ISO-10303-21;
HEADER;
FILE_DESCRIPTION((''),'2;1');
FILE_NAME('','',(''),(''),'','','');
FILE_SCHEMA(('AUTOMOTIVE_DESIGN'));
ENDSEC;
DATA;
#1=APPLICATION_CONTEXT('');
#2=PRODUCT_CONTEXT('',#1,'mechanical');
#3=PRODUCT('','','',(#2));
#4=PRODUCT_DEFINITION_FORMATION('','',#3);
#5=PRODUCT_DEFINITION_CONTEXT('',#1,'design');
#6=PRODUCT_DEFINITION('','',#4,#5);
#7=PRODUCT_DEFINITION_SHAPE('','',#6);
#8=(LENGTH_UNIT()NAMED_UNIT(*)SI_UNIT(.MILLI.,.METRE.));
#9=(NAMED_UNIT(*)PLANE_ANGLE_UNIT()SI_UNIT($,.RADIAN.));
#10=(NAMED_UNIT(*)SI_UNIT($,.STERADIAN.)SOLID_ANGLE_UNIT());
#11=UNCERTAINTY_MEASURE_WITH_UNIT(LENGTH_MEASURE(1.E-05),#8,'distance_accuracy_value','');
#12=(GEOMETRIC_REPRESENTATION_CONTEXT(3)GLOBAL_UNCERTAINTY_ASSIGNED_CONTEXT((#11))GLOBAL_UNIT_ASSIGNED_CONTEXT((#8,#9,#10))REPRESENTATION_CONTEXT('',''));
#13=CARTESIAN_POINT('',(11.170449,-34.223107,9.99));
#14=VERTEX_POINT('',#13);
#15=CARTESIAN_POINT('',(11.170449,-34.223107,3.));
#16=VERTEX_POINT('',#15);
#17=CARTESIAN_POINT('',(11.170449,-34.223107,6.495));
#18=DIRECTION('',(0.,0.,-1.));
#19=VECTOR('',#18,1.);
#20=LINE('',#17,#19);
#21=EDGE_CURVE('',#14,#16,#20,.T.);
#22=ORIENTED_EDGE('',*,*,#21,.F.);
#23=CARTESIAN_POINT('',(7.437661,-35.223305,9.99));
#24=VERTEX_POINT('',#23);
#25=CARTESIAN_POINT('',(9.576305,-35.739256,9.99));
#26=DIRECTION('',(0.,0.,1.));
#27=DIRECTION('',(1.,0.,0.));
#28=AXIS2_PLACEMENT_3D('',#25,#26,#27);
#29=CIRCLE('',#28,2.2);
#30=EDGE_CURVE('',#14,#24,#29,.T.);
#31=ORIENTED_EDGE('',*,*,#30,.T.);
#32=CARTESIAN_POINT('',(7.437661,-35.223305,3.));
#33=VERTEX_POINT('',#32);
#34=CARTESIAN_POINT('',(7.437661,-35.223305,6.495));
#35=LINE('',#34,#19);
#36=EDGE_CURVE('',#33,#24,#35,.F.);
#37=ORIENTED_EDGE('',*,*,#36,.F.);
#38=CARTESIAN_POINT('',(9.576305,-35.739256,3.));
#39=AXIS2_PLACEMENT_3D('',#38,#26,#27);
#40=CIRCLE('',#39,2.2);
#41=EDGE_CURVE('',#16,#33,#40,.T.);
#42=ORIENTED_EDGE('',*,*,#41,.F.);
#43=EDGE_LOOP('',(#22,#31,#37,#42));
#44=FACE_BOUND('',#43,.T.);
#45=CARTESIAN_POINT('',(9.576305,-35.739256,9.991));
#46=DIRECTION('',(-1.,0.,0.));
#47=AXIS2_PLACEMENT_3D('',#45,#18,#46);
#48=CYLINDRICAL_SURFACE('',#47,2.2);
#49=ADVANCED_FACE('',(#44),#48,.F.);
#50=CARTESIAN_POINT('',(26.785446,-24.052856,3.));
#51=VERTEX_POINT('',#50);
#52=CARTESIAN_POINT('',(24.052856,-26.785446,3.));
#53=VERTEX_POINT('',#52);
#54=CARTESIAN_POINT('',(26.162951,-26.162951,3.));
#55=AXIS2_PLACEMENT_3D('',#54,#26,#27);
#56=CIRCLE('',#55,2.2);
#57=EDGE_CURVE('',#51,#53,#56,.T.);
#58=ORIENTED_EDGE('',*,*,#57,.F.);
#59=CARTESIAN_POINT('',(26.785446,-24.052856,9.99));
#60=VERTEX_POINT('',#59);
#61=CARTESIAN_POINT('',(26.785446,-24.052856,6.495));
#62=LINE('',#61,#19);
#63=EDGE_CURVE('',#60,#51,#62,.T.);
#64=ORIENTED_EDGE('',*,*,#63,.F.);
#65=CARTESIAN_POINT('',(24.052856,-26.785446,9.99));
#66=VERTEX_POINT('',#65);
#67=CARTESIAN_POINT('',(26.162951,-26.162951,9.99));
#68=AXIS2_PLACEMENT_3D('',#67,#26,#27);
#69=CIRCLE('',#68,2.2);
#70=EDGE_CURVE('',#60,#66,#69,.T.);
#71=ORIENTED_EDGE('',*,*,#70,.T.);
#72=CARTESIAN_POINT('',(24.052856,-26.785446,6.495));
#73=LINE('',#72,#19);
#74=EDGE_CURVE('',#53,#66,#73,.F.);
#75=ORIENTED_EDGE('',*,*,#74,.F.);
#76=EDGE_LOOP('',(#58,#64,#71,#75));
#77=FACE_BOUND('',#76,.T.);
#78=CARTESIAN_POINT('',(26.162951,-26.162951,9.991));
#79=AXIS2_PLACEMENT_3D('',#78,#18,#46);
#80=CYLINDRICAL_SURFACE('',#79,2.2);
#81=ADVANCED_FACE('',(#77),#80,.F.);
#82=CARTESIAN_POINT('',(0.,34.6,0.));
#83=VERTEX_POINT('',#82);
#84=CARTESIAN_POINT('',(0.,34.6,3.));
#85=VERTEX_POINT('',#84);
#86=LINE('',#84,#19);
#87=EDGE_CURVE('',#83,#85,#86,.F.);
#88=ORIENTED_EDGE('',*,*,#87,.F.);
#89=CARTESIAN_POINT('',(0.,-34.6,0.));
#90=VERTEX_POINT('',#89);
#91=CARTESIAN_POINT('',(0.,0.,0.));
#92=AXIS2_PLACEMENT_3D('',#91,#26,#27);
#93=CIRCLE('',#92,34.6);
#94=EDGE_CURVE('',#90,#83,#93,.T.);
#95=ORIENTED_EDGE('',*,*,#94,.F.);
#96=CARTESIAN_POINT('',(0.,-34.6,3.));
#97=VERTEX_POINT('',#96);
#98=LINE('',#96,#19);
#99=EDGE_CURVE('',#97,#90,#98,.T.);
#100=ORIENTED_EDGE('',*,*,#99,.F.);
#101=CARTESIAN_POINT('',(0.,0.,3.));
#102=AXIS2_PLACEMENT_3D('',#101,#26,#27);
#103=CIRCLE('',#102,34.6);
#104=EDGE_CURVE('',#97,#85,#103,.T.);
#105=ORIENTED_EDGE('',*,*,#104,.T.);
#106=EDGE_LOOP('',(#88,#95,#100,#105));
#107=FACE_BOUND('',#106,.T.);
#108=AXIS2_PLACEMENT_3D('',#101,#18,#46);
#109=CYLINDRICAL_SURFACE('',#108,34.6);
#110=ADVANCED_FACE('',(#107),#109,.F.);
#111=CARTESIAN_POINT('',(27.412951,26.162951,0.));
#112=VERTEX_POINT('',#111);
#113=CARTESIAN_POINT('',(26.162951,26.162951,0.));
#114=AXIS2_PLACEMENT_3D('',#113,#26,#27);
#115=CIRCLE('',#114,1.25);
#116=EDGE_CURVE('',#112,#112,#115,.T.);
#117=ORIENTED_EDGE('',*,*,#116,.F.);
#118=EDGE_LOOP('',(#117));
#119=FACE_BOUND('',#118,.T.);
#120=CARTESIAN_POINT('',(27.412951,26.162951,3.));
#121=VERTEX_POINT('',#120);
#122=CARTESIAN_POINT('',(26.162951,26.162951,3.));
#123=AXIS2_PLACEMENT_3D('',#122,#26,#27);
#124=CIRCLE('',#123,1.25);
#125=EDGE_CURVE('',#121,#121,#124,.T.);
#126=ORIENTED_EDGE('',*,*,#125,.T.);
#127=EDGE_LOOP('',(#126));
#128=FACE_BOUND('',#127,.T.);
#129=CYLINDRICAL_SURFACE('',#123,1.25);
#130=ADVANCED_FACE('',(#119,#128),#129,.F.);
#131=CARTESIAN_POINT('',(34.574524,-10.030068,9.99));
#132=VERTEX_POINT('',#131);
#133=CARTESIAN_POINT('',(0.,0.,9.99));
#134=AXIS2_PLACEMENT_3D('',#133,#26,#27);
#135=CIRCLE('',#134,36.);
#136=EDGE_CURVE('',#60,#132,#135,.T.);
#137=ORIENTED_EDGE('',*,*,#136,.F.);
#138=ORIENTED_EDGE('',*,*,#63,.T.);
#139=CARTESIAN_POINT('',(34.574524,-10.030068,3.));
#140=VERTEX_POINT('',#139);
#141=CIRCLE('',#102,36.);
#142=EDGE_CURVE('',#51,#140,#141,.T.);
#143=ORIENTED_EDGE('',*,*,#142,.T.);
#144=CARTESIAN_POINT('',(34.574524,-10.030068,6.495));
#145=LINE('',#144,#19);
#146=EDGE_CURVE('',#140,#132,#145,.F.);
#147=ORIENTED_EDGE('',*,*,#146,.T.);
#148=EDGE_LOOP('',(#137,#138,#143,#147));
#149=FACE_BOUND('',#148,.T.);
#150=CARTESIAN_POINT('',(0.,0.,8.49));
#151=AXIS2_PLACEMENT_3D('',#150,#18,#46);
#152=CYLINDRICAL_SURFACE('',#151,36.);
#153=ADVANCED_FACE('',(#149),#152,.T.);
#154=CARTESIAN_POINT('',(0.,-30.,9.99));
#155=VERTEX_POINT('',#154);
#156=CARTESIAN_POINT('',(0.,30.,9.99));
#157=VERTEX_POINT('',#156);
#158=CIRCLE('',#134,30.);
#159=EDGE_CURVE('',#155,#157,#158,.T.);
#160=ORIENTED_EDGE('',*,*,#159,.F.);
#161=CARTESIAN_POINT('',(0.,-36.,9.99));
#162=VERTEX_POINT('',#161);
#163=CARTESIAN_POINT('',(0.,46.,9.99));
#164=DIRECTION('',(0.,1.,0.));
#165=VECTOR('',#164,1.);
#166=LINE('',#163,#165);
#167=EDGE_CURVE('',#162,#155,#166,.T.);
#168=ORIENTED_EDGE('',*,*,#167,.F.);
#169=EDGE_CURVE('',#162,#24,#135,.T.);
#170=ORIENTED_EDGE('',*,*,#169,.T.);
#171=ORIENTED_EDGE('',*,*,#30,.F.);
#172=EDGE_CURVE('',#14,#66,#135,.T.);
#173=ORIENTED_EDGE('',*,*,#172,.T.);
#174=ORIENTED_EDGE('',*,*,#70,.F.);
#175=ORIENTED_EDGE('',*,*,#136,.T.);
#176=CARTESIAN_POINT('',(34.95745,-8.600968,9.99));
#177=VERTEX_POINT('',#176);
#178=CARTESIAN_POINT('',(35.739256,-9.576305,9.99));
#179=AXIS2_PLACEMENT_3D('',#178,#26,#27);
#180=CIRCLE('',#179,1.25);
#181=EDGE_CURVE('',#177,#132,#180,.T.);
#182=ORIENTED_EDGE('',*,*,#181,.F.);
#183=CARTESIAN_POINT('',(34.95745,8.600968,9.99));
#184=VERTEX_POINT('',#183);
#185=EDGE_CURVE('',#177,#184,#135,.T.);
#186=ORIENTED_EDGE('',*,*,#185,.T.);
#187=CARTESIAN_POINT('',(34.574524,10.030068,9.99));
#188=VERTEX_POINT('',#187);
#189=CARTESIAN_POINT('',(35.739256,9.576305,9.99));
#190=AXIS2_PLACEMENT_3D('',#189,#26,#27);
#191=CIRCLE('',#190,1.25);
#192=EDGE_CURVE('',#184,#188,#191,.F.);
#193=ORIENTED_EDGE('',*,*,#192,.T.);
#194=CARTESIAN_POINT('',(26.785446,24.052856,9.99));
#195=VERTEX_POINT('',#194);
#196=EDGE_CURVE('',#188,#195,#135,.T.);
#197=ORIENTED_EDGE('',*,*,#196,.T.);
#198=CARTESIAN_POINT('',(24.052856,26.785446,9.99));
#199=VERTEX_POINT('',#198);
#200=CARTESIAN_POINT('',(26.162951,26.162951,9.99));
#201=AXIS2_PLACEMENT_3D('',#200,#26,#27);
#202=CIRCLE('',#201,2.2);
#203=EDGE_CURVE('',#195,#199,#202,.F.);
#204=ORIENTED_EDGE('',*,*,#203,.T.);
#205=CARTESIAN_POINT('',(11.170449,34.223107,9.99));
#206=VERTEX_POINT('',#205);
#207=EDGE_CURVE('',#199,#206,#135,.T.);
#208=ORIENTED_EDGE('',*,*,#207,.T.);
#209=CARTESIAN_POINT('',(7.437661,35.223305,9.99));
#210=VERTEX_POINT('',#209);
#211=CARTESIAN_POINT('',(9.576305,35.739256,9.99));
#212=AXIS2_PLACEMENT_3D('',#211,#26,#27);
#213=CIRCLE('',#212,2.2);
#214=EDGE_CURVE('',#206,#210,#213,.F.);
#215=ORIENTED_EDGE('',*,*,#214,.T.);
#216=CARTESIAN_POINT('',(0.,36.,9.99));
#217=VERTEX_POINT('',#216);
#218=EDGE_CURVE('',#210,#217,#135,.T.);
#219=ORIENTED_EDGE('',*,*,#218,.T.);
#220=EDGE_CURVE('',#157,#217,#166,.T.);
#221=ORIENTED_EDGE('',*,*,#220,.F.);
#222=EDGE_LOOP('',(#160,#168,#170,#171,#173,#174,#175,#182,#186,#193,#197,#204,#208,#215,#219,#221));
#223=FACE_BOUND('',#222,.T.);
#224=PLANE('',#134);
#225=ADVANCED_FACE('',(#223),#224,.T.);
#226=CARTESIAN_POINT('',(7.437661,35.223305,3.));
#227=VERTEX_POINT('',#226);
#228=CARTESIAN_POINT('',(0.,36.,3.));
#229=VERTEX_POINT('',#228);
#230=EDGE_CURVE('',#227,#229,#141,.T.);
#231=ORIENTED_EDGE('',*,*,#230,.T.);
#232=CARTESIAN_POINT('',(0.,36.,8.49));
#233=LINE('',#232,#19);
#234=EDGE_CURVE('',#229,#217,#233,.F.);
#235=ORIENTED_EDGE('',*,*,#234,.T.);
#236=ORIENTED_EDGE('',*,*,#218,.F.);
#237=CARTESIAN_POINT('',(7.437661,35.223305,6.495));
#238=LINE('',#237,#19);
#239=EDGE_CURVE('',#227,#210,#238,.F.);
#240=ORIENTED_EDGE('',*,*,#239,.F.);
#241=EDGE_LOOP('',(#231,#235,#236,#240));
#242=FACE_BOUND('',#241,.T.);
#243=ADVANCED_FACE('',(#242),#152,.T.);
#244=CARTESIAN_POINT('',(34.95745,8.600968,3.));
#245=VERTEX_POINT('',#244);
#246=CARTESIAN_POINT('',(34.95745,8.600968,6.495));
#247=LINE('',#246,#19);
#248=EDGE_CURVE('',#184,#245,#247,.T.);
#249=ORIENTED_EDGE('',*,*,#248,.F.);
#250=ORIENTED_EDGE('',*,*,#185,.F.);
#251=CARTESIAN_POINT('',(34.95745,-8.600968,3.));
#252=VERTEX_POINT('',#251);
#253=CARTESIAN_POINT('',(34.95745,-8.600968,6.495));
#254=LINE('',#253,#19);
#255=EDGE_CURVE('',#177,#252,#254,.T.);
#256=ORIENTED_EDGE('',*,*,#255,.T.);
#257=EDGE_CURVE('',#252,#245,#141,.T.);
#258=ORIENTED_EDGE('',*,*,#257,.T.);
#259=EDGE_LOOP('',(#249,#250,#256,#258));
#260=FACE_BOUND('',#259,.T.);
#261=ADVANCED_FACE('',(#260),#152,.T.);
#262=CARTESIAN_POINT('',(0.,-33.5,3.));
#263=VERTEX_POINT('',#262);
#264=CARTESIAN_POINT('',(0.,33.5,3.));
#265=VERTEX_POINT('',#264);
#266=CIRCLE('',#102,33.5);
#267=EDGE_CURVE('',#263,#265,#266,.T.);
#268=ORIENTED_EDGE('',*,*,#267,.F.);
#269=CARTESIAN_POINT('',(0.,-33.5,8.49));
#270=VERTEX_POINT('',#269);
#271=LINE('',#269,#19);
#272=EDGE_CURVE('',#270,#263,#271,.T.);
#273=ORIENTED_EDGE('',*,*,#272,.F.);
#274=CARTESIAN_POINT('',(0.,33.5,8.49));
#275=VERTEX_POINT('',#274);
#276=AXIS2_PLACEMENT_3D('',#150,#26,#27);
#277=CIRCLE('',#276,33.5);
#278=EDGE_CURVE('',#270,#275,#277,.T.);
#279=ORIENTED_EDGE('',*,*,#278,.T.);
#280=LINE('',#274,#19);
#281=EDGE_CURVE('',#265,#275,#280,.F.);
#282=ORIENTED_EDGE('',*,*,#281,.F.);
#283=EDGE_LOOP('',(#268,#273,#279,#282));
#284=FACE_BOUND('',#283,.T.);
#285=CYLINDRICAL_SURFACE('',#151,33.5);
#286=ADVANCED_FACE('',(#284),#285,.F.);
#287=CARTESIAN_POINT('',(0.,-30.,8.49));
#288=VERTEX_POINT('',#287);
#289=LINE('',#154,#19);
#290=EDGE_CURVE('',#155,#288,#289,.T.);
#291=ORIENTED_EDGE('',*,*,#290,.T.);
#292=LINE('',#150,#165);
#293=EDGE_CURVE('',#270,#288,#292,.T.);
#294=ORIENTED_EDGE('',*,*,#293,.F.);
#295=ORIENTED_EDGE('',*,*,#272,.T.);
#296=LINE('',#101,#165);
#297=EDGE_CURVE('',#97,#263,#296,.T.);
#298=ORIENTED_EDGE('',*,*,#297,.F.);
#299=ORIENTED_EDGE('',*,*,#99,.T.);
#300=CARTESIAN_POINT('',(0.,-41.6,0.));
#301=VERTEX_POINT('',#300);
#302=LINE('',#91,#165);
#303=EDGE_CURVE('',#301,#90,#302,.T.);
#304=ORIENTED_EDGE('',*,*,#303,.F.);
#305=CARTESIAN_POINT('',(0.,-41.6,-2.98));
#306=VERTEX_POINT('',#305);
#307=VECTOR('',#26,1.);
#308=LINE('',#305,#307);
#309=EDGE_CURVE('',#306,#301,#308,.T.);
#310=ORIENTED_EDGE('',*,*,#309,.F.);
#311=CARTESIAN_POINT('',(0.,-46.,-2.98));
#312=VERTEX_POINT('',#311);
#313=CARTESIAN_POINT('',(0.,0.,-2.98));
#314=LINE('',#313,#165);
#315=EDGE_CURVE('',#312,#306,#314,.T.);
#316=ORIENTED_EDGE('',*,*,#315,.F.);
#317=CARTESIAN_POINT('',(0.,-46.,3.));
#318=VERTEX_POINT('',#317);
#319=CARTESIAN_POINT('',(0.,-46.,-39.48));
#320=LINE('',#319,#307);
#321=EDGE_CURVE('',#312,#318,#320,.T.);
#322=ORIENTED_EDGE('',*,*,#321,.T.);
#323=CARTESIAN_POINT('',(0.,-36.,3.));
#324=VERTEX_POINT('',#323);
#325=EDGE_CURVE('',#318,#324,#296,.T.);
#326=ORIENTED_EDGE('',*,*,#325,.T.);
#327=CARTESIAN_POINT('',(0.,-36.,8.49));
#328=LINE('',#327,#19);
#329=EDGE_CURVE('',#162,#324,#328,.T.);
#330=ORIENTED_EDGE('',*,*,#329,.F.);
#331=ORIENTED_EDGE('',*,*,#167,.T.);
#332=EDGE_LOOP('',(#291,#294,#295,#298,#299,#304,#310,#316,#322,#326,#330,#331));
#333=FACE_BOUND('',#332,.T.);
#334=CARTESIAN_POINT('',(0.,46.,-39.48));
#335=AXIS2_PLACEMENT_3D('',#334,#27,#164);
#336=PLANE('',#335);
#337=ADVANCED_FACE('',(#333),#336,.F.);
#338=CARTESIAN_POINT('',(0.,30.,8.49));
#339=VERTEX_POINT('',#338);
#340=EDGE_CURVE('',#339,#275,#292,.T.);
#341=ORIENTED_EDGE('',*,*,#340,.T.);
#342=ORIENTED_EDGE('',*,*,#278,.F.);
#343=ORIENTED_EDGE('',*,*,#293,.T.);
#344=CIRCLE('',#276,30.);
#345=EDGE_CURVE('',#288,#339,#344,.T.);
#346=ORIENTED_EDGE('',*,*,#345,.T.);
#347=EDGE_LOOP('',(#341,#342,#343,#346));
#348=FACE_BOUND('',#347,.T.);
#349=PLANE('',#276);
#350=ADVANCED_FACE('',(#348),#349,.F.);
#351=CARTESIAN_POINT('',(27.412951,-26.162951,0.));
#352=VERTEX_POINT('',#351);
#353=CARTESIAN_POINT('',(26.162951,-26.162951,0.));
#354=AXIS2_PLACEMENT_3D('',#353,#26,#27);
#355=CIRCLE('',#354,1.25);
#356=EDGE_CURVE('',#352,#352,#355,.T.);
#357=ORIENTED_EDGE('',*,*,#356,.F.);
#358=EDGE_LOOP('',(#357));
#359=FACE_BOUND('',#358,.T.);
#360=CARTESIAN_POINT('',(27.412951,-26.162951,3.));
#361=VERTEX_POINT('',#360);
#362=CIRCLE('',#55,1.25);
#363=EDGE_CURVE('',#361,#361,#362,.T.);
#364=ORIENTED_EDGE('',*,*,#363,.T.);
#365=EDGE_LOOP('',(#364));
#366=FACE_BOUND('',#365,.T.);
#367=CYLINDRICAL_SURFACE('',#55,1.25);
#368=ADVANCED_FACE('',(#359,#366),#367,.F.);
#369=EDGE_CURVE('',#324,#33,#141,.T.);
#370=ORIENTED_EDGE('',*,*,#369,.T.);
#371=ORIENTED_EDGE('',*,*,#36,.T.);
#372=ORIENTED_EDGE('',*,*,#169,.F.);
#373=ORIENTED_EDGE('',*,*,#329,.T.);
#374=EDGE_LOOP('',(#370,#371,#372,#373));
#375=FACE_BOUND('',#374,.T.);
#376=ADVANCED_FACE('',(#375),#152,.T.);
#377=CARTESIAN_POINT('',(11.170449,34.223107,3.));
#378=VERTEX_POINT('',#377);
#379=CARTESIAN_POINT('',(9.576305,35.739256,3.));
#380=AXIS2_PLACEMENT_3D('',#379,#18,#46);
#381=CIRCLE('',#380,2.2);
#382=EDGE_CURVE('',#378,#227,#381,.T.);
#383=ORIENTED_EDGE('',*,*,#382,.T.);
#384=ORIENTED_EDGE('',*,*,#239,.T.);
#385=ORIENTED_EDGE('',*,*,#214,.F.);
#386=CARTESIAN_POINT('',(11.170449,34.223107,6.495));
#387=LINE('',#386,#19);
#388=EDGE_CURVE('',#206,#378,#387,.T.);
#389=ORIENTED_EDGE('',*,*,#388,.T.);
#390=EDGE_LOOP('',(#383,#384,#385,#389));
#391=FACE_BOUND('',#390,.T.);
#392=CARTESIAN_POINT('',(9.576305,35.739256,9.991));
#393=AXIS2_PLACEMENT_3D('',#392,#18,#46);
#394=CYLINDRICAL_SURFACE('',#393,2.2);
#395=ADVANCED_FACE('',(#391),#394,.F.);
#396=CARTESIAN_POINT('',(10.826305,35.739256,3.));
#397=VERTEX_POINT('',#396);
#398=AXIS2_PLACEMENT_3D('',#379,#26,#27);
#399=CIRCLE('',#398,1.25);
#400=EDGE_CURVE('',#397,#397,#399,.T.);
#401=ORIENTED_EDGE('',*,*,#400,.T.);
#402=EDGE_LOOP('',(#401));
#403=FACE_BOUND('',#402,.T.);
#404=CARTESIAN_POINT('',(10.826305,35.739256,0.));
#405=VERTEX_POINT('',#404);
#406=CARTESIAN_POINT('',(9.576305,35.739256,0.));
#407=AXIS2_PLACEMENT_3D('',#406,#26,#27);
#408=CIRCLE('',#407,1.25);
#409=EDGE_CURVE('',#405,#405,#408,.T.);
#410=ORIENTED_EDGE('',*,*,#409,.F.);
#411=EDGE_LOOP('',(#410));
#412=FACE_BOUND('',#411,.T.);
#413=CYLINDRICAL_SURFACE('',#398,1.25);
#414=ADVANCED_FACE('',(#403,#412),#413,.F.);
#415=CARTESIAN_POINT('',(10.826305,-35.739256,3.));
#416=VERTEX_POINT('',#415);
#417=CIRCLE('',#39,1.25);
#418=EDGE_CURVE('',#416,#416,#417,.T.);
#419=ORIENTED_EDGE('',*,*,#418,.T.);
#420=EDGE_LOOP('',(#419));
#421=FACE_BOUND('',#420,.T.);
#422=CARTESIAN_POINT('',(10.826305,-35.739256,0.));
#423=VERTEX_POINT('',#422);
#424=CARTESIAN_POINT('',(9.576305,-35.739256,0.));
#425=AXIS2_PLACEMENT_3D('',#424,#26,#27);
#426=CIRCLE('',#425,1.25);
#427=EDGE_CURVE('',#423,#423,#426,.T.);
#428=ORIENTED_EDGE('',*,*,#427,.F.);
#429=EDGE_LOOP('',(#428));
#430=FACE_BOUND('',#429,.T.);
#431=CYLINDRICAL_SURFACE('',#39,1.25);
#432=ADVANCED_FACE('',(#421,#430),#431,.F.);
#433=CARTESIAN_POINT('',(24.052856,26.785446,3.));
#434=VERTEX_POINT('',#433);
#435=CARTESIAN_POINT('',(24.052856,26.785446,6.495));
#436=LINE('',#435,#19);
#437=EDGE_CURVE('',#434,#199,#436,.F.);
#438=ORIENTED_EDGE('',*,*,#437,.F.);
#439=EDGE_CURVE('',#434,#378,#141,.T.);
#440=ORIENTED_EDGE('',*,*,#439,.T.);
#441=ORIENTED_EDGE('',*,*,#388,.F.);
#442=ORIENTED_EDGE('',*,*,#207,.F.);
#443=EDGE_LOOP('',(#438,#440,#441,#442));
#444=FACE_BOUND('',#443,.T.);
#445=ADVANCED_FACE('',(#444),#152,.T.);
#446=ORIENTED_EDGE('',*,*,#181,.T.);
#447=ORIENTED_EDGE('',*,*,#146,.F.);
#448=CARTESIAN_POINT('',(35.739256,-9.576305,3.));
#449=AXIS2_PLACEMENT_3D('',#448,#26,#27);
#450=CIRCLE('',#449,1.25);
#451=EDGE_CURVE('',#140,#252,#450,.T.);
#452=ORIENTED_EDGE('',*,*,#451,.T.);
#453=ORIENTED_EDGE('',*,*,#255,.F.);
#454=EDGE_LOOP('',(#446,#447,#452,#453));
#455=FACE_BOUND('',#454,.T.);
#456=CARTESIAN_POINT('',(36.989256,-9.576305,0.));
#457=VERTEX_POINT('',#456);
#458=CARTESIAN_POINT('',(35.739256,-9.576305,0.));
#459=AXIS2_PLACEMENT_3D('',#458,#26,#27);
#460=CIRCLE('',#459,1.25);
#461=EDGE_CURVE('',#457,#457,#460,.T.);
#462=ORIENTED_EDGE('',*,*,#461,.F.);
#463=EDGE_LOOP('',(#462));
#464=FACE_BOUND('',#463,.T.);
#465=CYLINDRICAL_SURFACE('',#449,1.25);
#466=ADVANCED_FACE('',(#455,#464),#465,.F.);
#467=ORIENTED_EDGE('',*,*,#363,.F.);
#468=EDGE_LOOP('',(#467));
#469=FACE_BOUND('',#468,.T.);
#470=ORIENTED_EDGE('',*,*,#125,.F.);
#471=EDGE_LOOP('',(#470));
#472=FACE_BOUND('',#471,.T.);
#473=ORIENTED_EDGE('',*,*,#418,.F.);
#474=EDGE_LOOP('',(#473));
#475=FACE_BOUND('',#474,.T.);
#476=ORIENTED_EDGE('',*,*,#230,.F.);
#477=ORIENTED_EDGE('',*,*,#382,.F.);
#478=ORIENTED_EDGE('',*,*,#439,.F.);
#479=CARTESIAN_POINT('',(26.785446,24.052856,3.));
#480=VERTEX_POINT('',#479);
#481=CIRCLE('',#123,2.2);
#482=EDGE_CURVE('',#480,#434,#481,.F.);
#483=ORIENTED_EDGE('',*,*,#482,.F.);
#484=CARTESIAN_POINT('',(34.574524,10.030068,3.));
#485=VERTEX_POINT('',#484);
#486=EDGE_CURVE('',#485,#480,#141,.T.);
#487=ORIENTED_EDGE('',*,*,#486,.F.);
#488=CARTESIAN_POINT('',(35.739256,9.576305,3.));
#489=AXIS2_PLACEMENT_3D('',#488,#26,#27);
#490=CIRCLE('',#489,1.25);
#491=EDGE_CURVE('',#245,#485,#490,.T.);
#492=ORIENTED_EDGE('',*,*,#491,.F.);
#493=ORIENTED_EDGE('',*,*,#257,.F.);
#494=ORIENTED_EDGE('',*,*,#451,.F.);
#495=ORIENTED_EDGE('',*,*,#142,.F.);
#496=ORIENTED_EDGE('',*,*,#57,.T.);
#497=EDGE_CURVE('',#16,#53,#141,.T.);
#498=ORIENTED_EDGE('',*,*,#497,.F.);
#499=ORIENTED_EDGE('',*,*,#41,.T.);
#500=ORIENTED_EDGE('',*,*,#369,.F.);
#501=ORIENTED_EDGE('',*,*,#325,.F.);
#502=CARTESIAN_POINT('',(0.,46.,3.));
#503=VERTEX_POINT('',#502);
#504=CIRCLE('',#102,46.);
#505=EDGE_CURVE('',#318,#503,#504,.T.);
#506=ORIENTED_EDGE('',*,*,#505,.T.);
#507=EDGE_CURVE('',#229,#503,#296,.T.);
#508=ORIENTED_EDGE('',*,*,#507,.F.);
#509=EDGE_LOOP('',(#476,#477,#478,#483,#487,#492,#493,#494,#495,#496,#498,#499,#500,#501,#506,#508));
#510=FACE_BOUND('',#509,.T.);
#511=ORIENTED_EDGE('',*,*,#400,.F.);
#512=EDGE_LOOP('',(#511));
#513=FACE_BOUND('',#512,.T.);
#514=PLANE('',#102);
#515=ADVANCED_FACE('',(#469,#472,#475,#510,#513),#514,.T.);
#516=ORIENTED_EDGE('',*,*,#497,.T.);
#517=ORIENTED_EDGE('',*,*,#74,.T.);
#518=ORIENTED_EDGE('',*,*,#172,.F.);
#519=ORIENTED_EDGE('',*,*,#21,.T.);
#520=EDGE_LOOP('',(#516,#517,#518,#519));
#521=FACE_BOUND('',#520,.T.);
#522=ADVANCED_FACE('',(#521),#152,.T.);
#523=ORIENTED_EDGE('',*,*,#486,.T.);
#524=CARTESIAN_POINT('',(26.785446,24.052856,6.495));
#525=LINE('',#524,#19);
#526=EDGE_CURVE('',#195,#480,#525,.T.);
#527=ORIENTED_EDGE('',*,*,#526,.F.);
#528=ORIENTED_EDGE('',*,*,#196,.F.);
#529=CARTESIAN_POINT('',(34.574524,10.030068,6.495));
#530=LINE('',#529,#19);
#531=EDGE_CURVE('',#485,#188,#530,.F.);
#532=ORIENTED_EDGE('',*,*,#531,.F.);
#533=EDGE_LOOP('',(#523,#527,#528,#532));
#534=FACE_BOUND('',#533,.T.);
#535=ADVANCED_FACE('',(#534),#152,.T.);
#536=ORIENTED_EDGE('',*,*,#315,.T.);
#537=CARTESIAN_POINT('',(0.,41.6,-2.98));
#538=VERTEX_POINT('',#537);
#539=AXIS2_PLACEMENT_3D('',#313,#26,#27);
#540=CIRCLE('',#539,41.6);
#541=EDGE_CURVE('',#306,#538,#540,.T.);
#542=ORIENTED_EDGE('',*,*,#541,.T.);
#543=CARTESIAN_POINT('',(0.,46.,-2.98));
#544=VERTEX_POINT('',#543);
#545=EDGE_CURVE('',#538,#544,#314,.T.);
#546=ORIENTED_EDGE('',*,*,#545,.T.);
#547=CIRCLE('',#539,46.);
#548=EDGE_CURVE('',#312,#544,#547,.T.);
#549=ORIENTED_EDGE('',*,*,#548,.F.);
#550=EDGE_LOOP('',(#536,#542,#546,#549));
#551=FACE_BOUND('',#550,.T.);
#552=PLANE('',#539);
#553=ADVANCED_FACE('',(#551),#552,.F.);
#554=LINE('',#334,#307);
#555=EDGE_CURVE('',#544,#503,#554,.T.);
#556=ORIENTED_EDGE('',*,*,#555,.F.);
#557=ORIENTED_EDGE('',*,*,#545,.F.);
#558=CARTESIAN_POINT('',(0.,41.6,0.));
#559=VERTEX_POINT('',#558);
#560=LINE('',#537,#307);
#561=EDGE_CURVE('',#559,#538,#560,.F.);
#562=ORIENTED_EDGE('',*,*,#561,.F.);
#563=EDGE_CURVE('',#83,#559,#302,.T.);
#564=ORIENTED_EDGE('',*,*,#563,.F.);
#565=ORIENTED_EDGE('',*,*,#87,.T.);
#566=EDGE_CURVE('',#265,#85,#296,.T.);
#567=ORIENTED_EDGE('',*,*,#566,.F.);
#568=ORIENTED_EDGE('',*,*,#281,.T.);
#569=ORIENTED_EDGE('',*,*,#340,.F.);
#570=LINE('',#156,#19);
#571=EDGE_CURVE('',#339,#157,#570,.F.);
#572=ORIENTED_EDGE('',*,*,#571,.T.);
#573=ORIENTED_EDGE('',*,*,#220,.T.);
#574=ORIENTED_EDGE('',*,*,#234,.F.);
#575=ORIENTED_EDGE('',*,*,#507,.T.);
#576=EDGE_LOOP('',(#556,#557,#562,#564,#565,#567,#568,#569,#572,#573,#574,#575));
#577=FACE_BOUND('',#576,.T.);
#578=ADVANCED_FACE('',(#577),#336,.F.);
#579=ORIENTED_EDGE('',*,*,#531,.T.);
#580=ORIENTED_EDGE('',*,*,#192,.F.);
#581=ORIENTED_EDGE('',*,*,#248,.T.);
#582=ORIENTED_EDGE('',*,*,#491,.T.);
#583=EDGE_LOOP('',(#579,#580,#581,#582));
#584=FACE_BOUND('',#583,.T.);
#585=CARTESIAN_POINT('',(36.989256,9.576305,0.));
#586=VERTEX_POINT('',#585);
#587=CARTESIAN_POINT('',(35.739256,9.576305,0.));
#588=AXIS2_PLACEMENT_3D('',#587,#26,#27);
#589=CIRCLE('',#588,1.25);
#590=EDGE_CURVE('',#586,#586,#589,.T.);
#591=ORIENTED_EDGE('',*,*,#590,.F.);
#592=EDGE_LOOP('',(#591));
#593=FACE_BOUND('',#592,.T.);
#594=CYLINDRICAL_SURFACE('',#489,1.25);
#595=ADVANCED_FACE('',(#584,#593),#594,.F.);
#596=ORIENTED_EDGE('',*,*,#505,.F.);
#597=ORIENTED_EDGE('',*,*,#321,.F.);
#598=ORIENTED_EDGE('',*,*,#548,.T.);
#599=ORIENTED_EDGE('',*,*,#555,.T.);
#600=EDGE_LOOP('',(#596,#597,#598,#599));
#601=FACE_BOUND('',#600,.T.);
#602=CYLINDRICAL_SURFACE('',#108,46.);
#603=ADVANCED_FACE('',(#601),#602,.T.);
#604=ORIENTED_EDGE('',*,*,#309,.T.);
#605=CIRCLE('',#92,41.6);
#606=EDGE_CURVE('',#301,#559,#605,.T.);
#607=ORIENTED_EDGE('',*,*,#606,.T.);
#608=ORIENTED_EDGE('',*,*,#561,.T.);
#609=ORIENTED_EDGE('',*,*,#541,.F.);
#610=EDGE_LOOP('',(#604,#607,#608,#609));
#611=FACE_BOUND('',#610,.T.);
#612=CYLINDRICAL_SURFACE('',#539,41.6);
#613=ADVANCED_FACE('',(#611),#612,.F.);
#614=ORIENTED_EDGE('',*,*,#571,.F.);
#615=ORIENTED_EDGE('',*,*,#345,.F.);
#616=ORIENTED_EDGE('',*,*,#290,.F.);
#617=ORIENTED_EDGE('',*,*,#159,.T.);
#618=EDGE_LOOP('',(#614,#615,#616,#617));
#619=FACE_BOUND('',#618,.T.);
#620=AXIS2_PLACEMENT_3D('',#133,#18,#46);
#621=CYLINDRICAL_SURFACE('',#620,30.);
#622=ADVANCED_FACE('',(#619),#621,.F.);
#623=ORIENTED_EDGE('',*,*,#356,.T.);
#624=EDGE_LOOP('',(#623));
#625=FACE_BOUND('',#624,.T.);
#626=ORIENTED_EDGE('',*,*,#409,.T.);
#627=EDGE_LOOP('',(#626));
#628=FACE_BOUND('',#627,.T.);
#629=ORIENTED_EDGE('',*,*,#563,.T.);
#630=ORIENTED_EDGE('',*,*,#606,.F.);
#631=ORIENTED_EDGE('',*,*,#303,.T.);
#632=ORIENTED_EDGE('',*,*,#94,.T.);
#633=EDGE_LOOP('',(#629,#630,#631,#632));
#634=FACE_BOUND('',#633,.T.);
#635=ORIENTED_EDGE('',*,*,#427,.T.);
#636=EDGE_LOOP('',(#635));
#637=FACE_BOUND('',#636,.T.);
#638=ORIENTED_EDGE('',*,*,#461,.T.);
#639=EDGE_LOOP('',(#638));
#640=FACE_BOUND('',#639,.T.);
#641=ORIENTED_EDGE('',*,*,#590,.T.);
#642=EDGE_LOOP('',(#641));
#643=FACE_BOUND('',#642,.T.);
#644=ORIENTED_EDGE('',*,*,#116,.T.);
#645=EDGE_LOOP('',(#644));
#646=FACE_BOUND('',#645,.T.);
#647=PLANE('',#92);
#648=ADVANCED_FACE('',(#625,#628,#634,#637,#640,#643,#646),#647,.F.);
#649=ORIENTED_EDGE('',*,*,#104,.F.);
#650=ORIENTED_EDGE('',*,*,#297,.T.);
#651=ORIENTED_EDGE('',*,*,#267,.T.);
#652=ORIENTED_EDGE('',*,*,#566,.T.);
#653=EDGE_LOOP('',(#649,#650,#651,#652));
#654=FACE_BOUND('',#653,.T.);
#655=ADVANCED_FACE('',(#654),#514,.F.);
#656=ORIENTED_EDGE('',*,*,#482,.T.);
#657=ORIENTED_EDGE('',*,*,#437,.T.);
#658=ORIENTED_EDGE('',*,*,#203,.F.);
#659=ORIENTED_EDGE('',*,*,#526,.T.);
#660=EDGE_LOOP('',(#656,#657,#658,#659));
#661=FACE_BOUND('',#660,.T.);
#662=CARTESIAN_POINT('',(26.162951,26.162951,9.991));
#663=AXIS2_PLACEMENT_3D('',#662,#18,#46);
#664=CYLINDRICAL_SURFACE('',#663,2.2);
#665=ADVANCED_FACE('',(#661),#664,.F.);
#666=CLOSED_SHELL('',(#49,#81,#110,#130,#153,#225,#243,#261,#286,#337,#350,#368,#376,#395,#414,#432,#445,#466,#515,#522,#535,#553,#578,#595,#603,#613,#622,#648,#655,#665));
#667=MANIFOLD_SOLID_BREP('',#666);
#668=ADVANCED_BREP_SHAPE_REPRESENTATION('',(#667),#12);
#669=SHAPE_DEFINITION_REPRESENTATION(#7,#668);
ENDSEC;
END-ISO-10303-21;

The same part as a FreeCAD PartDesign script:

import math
import FreeCAD as App
import Part
import Sketcher
from FreeCAD import Vector


def edges_at(feature, points):
    """Names of the edges that pass closest to the given points."""
    edges = feature.Shape.Edges
    near = lambda p: min(range(len(edges)), key=lambda i: edges[i].distToShape(Part.Vertex(*p))[0])
    return sorted({f"Edge{near(p) + 1}" for p in points})

doc = App.newDocument("Part")
body = doc.addObject("PartDesign::Body", "Body")

# Sketch on XY plane
sketch1 = body.newObject("Sketcher::SketchObject", "Sketch")
sketch1.AttachmentSupport = (doc.getObject("XY_Plane"), [""])
sketch1.MapMode = "FlatFace"
sketch1.addGeometry([
    Part.Circle(Vector(0, 0, 0), Vector(0, 0, 1), 46),
    Part.Circle(Vector(0, 0, 0), Vector(0, 0, 1), 35),
], False)
sketch1.addConstraint([
    Sketcher.Constraint("Coincident", 0, 3, -1, 1),
    Sketcher.Constraint("Coincident", 1, 3, -1, 1),
    Sketcher.Constraint("Diameter", 0, 92.0),
    Sketcher.Constraint("Diameter", 1, 69.2),
])
pad1 = body.newObject("PartDesign::Pad", "Pad")
pad1.Profile = sketch1
pad1.Length = 3

# Sketch on XY plane
sketch2 = body.newObject("Sketcher::SketchObject", "Sketch001")
sketch2.AttachmentSupport = (doc.getObject("XY_Plane"), [""])
sketch2.MapMode = "FlatFace"
sketch2.AttachmentOffset = App.Placement(Vector(0, 0, 3), App.Rotation())
sketch2.addGeometry([
    Part.Circle(Vector(0, 0, 0), Vector(0, 0, 1), 36),
    Part.Circle(Vector(0, 0, 0), Vector(0, 0, 1), 34),
], False)
sketch2.addConstraint([
    Sketcher.Constraint("Coincident", 0, 3, -1, 1),
    Sketcher.Constraint("Coincident", 1, 3, -1, 1),
    Sketcher.Constraint("Diameter", 0, 72.0),
    Sketcher.Constraint("Diameter", 1, 67.0),
])
pad2 = body.newObject("PartDesign::Pad", "Pad001")
pad2.Profile = sketch2
pad2.Length = 5.49

# Sketch on XY plane
sketch3 = body.newObject("Sketcher::SketchObject", "Sketch002")
sketch3.AttachmentSupport = (doc.getObject("XY_Plane"), [""])
sketch3.MapMode = "FlatFace"
sketch3.addGeometry([
    Part.Circle(Vector(0, 0, 0), Vector(0, 0, 1), 46),
    Part.Circle(Vector(0, 0, 0), Vector(0, 0, 1), 42),
], False)
sketch3.addConstraint([
    Sketcher.Constraint("Coincident", 0, 3, -1, 1),
    Sketcher.Constraint("Coincident", 1, 3, -1, 1),
    Sketcher.Constraint("Diameter", 0, 92.0),
    Sketcher.Constraint("Diameter", 1, 83.2),
])
pad3 = body.newObject("PartDesign::Pad", "Pad002")
pad3.Profile = sketch3
pad3.Length = 2.98
pad3.Reversed = True

# Sketch on XY plane
sketch4 = body.newObject("Sketcher::SketchObject", "Sketch003")
sketch4.AttachmentSupport = (doc.getObject("XY_Plane"), [""])
sketch4.MapMode = "FlatFace"
sketch4.AttachmentOffset = App.Placement(Vector(0, 0, 8.49), App.Rotation())
sketch4.addGeometry([
    Part.Circle(Vector(0, 0, 0), Vector(0, 0, 1), 36),
    Part.Circle(Vector(0, 0, 0), Vector(0, 0, 1), 30),
], False)
sketch4.addConstraint([
    Sketcher.Constraint("Coincident", 0, 3, -1, 1),
    Sketcher.Constraint("Coincident", 1, 3, -1, 1),
    Sketcher.Constraint("Diameter", 0, 72.0),
    Sketcher.Constraint("Diameter", 1, 60.0),
])
pad4 = body.newObject("PartDesign::Pad", "Pad003")
pad4.Profile = sketch4
pad4.Length = 1.5

# Sketch on XY plane
sketch5 = body.newObject("Sketcher::SketchObject", "Sketch004")
sketch5.AttachmentSupport = (doc.getObject("XY_Plane"), [""])
sketch5.MapMode = "FlatFace"
sketch5.addGeometry([
    Part.LineSegment(Vector(-45, 20, 0), Vector(-50, 20, 0)),  # 0
    Part.LineSegment(Vector(-50, 20, 0), Vector(-50, -20, 0)),  # 1
    Part.LineSegment(Vector(-50, -20, 0), Vector(-45, -20, 0)),  # 2
    Part.ArcOfCircle(Part.Circle(Vector(-45, -26, 0), Vector(0, 0, 1), 6), math.radians(30), math.radians(90)),  # 3
    Part.ArcOfCircle(Part.Circle(Vector(0, 0, 0), Vector(0, 0, 1), 46), math.radians(150), math.radians(210)),  # 4
    Part.ArcOfCircle(Part.Circle(Vector(-45, 26, 0), Vector(0, 0, 1), 6), math.radians(-90), math.radians(-30)),  # 5
], False)
sketch5.addConstraint([
    Sketcher.Constraint("Coincident", 0, 2, 1, 1),
    Sketcher.Constraint("Coincident", 1, 2, 2, 1),
    Sketcher.Constraint("Tangent", 2, 2, 3, 2),
    Sketcher.Constraint("Tangent", 3, 1, 4, 2),
    Sketcher.Constraint("Tangent", 4, 1, 5, 2),
    Sketcher.Constraint("Tangent", 5, 1, 0, 1),
    Sketcher.Constraint("Horizontal", 0),
    Sketcher.Constraint("Vertical", 1),
    Sketcher.Constraint("Horizontal", 2),
    Sketcher.Constraint("Coincident", 4, 3, -1, 1),
    Sketcher.Constraint("Equal", 3, 5),
    Sketcher.Constraint("Vertical", 3, 3, 5, 3),
    Sketcher.Constraint("Radius", 4, 46.0),
    Sketcher.Constraint("DistanceX", 0, 2, -1, 1, 50.0),
    Sketcher.Constraint("Radius", 3, 5.974379),
    Sketcher.Constraint("DistanceY", 3, 3, -1, 1, 25.982401),
])
pad5 = body.newObject("PartDesign::Pad", "Pad004")
pad5.Profile = sketch5
pad5.Type = "TwoLengths"
pad5.Length = 3
pad5.Length2 = 2.98

# Sketch on YZ plane
sketch6 = body.newObject("Sketcher::SketchObject", "Sketch005")
sketch6.AttachmentSupport = (doc.getObject("YZ_Plane"), [""])
sketch6.MapMode = "FlatFace"
sketch6.AttachmentOffset = App.Placement(Vector(0, 0, -35.739256), App.Rotation())
sketch6.addGeometry([
    Part.LineSegment(Vector(-9.6, -3, 0), Vector(-9.6, 3, 0)),
    Part.LineSegment(Vector(-9.6, 3, 0), Vector(-10.8, 3, 0)),
    Part.LineSegment(Vector(-10.8, 3, 0), Vector(-10.8, -3, 0)),
    Part.LineSegment(Vector(-10.8, -3, 0), Vector(-9.6, -3, 0)),
], False)
sketch6.addGeometry(Part.LineSegment(Vector(-9.6, 3, 0), Vector(-9.6, -3, 0)), True)  # axis
sketch6.addConstraint([
    Sketcher.Constraint("Coincident", 0, 2, 1, 1),
    Sketcher.Constraint("Coincident", 1, 2, 2, 1),
    Sketcher.Constraint("Coincident", 2, 2, 3, 1),
    Sketcher.Constraint("Coincident", 3, 2, 0, 1),
    Sketcher.Constraint("Vertical", 0),
    Sketcher.Constraint("Horizontal", 1),
    Sketcher.Constraint("Vertical", 2),
    Sketcher.Constraint("Horizontal", 3),
    Sketcher.Constraint("Vertical", 4),
    Sketcher.Constraint("Coincident", 4, 1, 0, 2),
    Sketcher.Constraint("Horizontal", 2, 2, 4, 2),
    Sketcher.Constraint("DistanceY", -1, 1, 0, 2, 3.0),
    Sketcher.Constraint("DistanceX", 1, 2, 1, 1, 1.25),
    Sketcher.Constraint("DistanceY", 0, 1, 0, 2, 5.98),
    Sketcher.Constraint("DistanceX", 0, 2, -1, 1, 9.576305),
])
groove = body.newObject("PartDesign::Groove", "Groove")
groove.Profile = sketch6
groove.ReferenceAxis = (sketch6, ["Axis0"])
groove.Angle = 360
doc.recompute()

datumline = body.newObject("PartDesign::Line", "DatumLine")
datumline.Placement = App.Placement(Vector(0, 0, 0), App.Rotation(Vector(0, 0, 1), Vector(0.707106781, 0.707106781, 0)))
linearpattern = body.newObject("PartDesign::LinearPattern", "LinearPattern")
linearpattern.Originals = [groove]
linearpattern.Direction = (datumline, [""])
linearpattern.Mode = "offset"
linearpattern.Offset = 64.08588
linearpattern.Occurrences = 2
body.Tip = linearpattern
doc.recompute()

datumline2 = body.newObject("PartDesign::Line", "DatumLine001")
datumline2.Placement = App.Placement(Vector(0, 0, 0), App.Rotation(Vector(0, 0, 1), Vector(0.866025404, 0.5, 0)))
linearpattern2 = body.newObject("PartDesign::LinearPattern", "LinearPattern001")
linearpattern2.Originals = [groove]
linearpattern2.Direction = (datumline2, [""])
linearpattern2.Mode = "offset"
linearpattern2.Offset = 71.478511
linearpattern2.Occurrences = 2
body.Tip = linearpattern2
doc.recompute()

datumline3 = body.newObject("PartDesign::Line", "DatumLine002")
datumline3.Placement = App.Placement(Vector(0, 0, 0), App.Rotation(Vector(0, 0, 1), Vector(0.965925826, 0.258819045, 0)))
linearpattern3 = body.newObject("PartDesign::LinearPattern", "LinearPattern002")
linearpattern3.Originals = [groove]
linearpattern3.Direction = (datumline3, [""])
linearpattern3.Mode = "offset"
linearpattern3.Offset = 74
linearpattern3.Occurrences = 2
body.Tip = linearpattern3
doc.recompute()

linearpattern4 = body.newObject("PartDesign::LinearPattern", "LinearPattern003")
linearpattern4.Originals = [groove]
linearpattern4.Direction = (doc.getObject("Y_Axis"), [""])
linearpattern4.Mode = "offset"
linearpattern4.Offset = 19.152609
linearpattern4.Occurrences = 2
body.Tip = linearpattern4
doc.recompute()

datumline4 = body.newObject("PartDesign::Line", "DatumLine003")
datumline4.Placement = App.Placement(Vector(0, 0, 0), App.Rotation(Vector(0, 0, 1), Vector(0.258819045, 0.965925826, 0)))
linearpattern5 = body.newObject("PartDesign::LinearPattern", "LinearPattern004")
linearpattern5.Originals = [groove]
linearpattern5.Direction = (datumline4, [""])
linearpattern5.Mode = "offset"
linearpattern5.Offset = 37
linearpattern5.Occurrences = 2
body.Tip = linearpattern5
doc.recompute()

datumline5 = body.newObject("PartDesign::Line", "DatumLine004")
datumline5.Placement = App.Placement(Vector(0, 0, 0), App.Rotation(Vector(0, 0, 1), Vector(0.5, 0.866025404, 0)))
linearpattern6 = body.newObject("PartDesign::LinearPattern", "LinearPattern005")
linearpattern6.Originals = [groove]
linearpattern6.Direction = (datumline5, [""])
linearpattern6.Mode = "offset"
linearpattern6.Offset = 52.325902
linearpattern6.Occurrences = 2
body.Tip = linearpattern6
doc.recompute()

linearpattern7 = body.newObject("PartDesign::LinearPattern", "LinearPattern006")
linearpattern7.Originals = [groove]
linearpattern7.Direction = (doc.getObject("X_Axis"), [""])
linearpattern7.Mode = "offset"
linearpattern7.Offset = 71.478511
linearpattern7.Occurrences = 2
body.Tip = linearpattern7
doc.recompute()

datumline6 = body.newObject("PartDesign::Line", "DatumLine005")
datumline6.Placement = App.Placement(Vector(0, 0, 0), App.Rotation(Vector(0, 0, 1), Vector(0.965925826, -0.258819045, 0)))
linearpattern8 = body.newObject("PartDesign::LinearPattern", "LinearPattern007")
linearpattern8.Originals = [groove]
linearpattern8.Direction = (datumline6, [""])
linearpattern8.Mode = "offset"
linearpattern8.Offset = 64.08588
linearpattern8.Occurrences = 2
body.Tip = linearpattern8
doc.recompute()

datumline7 = body.newObject("PartDesign::Line", "DatumLine006")
datumline7.Placement = App.Placement(Vector(0, 0, 0), App.Rotation(Vector(0, 0, 1), Vector(0.866025404, -0.5, 0)))
linearpattern9 = body.newObject("PartDesign::LinearPattern", "LinearPattern008")
linearpattern9.Originals = [groove]
linearpattern9.Direction = (datumline7, [""])
linearpattern9.Mode = "offset"
linearpattern9.Offset = 52.325902
linearpattern9.Occurrences = 2
body.Tip = linearpattern9
doc.recompute()

datumline8 = body.newObject("PartDesign::Line", "DatumLine007")
datumline8.Placement = App.Placement(Vector(0, 0, 0), App.Rotation(Vector(0, 0, 1), Vector(0.707106781, -0.707106781, 0)))
linearpattern10 = body.newObject("PartDesign::LinearPattern", "LinearPattern009")
linearpattern10.Originals = [groove]
linearpattern10.Direction = (datumline8, [""])
linearpattern10.Mode = "offset"
linearpattern10.Offset = 37
linearpattern10.Occurrences = 2
body.Tip = linearpattern10
doc.recompute()

datumline9 = body.newObject("PartDesign::Line", "DatumLine008")
datumline9.Placement = App.Placement(Vector(0, 0, 0), App.Rotation(Vector(0, 0, 1), Vector(0.5, -0.866025404, 0)))
linearpattern11 = body.newObject("PartDesign::LinearPattern", "LinearPattern010")
linearpattern11.Originals = [groove]
linearpattern11.Direction = (datumline9, [""])
linearpattern11.Mode = "offset"
linearpattern11.Offset = 19.152609
linearpattern11.Occurrences = 2
body.Tip = linearpattern11

# Sketch on XY plane
sketch7 = body.newObject("Sketcher::SketchObject", "Sketch006")
sketch7.AttachmentSupport = (doc.getObject("XY_Plane"), [""])
sketch7.MapMode = "FlatFace"
sketch7.AttachmentOffset = App.Placement(Vector(0, 0, 3), App.Rotation())
sketch7.addGeometry(Part.Circle(Vector(-35.7, -9.6, 0), Vector(0, 0, 1), 1.2), False)
sketch7.addConstraint([
    Sketcher.Constraint("Diameter", 0, 2.5),
    Sketcher.Constraint("DistanceX", 0, 3, -1, 1, 35.739256),
    Sketcher.Constraint("DistanceY", 0, 3, -1, 1, 9.576305),
])
pocket1 = body.newObject("PartDesign::Pocket", "Pocket")
pocket1.Profile = sketch7
pocket1.Length = 6.99
pocket1.Reversed = True

# Sketch on XY plane
sketch8 = body.newObject("Sketcher::SketchObject", "Sketch007")
sketch8.AttachmentSupport = (doc.getObject("XY_Plane"), [""])
sketch8.MapMode = "FlatFace"
sketch8.AttachmentOffset = App.Placement(Vector(0, 0, 3), App.Rotation())
sketch8.addGeometry(Part.Circle(Vector(-26.2, -26.2, 0), Vector(0, 0, 1), 2.2), False)
sketch8.addConstraint([
    Sketcher.Constraint("Diameter", 0, 4.4),
    Sketcher.Constraint("DistanceX", 0, 3, -1, 1, 26.162951),
    Sketcher.Constraint("DistanceY", 0, 3, -1, 1, 26.162951),
])
pocket2 = body.newObject("PartDesign::Pocket", "Pocket001")
pocket2.Profile = sketch8
pocket2.Length = 6.99
pocket2.Reversed = True

# Sketch on XY plane
sketch9 = body.newObject("Sketcher::SketchObject", "Sketch008")
sketch9.AttachmentSupport = (doc.getObject("XY_Plane"), [""])
sketch9.MapMode = "FlatFace"
sketch9.AttachmentOffset = App.Placement(Vector(0, 0, 3), App.Rotation())
sketch9.addGeometry(Part.Circle(Vector(-35.7, 9.6, 0), Vector(0, 0, 1), 1.2), False)
sketch9.addConstraint([
    Sketcher.Constraint("Diameter", 0, 2.5),
    Sketcher.Constraint("DistanceX", 0, 3, -1, 1, 35.739256),
    Sketcher.Constraint("DistanceY", -1, 1, 0, 3, 9.576305),
])
pocket3 = body.newObject("PartDesign::Pocket", "Pocket002")
pocket3.Profile = sketch9
pocket3.Length = 6.99
pocket3.Reversed = True

# Sketch on XY plane
sketch10 = body.newObject("Sketcher::SketchObject", "Sketch009")
sketch10.AttachmentSupport = (doc.getObject("XY_Plane"), [""])
sketch10.MapMode = "FlatFace"
sketch10.AttachmentOffset = App.Placement(Vector(0, 0, 3), App.Rotation())
sketch10.addGeometry(Part.Circle(Vector(-26.2, 26.2, 0), Vector(0, 0, 1), 2.2), False)
sketch10.addConstraint([
    Sketcher.Constraint("Diameter", 0, 4.4),
    Sketcher.Constraint("DistanceX", 0, 3, -1, 1, 26.162951),
    Sketcher.Constraint("DistanceY", -1, 1, 0, 3, 26.162951),
])
pocket4 = body.newObject("PartDesign::Pocket", "Pocket003")
pocket4.Profile = sketch10
pocket4.Length = 6.99
pocket4.Reversed = True

# Sketch on XY plane
sketch11 = body.newObject("Sketcher::SketchObject", "Sketch010")
sketch11.AttachmentSupport = (doc.getObject("XY_Plane"), [""])
sketch11.MapMode = "FlatFace"
sketch11.AttachmentOffset = App.Placement(Vector(0, 0, 3), App.Rotation())
sketch11.addGeometry(Part.Circle(Vector(-9.6, 35.7, 0), Vector(0, 0, 1), 2.2), False)
sketch11.addConstraint([
    Sketcher.Constraint("Diameter", 0, 4.4),
    Sketcher.Constraint("DistanceX", 0, 3, -1, 1, 9.576305),
    Sketcher.Constraint("DistanceY", -1, 1, 0, 3, 35.739256),
])
pocket5 = body.newObject("PartDesign::Pocket", "Pocket004")
pocket5.Profile = sketch11
pocket5.Length = 6.99
pocket5.Reversed = True

# Sketch on XY plane
sketch12 = body.newObject("Sketcher::SketchObject", "Sketch011")
sketch12.AttachmentSupport = (doc.getObject("XY_Plane"), [""])
sketch12.MapMode = "FlatFace"
sketch12.AttachmentOffset = App.Placement(Vector(0, 0, 3), App.Rotation())
sketch12.addGeometry(Part.Circle(Vector(26.2, 26.2, 0), Vector(0, 0, 1), 2.2), False)
sketch12.addConstraint([
    Sketcher.Constraint("Diameter", 0, 4.4),
    Sketcher.Constraint("DistanceX", -1, 1, 0, 3, 26.162951),
    Sketcher.Constraint("DistanceY", -1, 1, 0, 3, 26.162951),
])
pocket6 = body.newObject("PartDesign::Pocket", "Pocket005")
pocket6.Profile = sketch12
pocket6.Length = 6.99
pocket6.Reversed = True

# Sketch on XY plane
sketch13 = body.newObject("Sketcher::SketchObject", "Sketch012")
sketch13.AttachmentSupport = (doc.getObject("XY_Plane"), [""])
sketch13.MapMode = "FlatFace"
sketch13.AttachmentOffset = App.Placement(Vector(0, 0, 3), App.Rotation())
sketch13.addGeometry(Part.Circle(Vector(35.7, 9.6, 0), Vector(0, 0, 1), 1.2), False)
sketch13.addConstraint([
    Sketcher.Constraint("Diameter", 0, 2.5),
    Sketcher.Constraint("DistanceX", -1, 1, 0, 3, 35.739256),
    Sketcher.Constraint("DistanceY", -1, 1, 0, 3, 9.576305),
])
pocket7 = body.newObject("PartDesign::Pocket", "Pocket006")
pocket7.Profile = sketch13
pocket7.Length = 6.99
pocket7.Reversed = True

# Sketch on XY plane
sketch14 = body.newObject("Sketcher::SketchObject", "Sketch013")
sketch14.AttachmentSupport = (doc.getObject("XY_Plane"), [""])
sketch14.MapMode = "FlatFace"
sketch14.AttachmentOffset = App.Placement(Vector(0, 0, 3), App.Rotation())
sketch14.addGeometry(Part.Circle(Vector(35.7, -9.6, 0), Vector(0, 0, 1), 1.2), False)
sketch14.addConstraint([
    Sketcher.Constraint("Diameter", 0, 2.5),
    Sketcher.Constraint("DistanceX", -1, 1, 0, 3, 35.739256),
    Sketcher.Constraint("DistanceY", 0, 3, -1, 1, 9.576305),
])
pocket8 = body.newObject("PartDesign::Pocket", "Pocket007")
pocket8.Profile = sketch14
pocket8.Length = 6.99
pocket8.Reversed = True

# Sketch on XY plane
sketch15 = body.newObject("Sketcher::SketchObject", "Sketch014")
sketch15.AttachmentSupport = (doc.getObject("XY_Plane"), [""])
sketch15.MapMode = "FlatFace"
sketch15.AttachmentOffset = App.Placement(Vector(0, 0, 3), App.Rotation())
sketch15.addGeometry(Part.Circle(Vector(9.6, -35.7, 0), Vector(0, 0, 1), 2.2), False)
sketch15.addConstraint([
    Sketcher.Constraint("Diameter", 0, 4.4),
    Sketcher.Constraint("DistanceX", -1, 1, 0, 3, 9.576305),
    Sketcher.Constraint("DistanceY", 0, 3, -1, 1, 35.739256),
])
pocket9 = body.newObject("PartDesign::Pocket", "Pocket008")
pocket9.Profile = sketch15
pocket9.Length = 6.99
pocket9.Reversed = True

# Sketch on XY plane
sketch16 = body.newObject("Sketcher::SketchObject", "Sketch015")
sketch16.AttachmentSupport = (doc.getObject("XY_Plane"), [""])
sketch16.MapMode = "FlatFace"
sketch16.AttachmentOffset = App.Placement(Vector(0, 0, 3), App.Rotation())
sketch16.addGeometry(Part.Circle(Vector(-9.6, -35.7, 0), Vector(0, 0, 1), 2.2), False)
sketch16.addConstraint([
    Sketcher.Constraint("Diameter", 0, 4.4),
    Sketcher.Constraint("DistanceX", 0, 3, -1, 1, 9.576305),
    Sketcher.Constraint("DistanceY", 0, 3, -1, 1, 35.739256),
])
pocket10 = body.newObject("PartDesign::Pocket", "Pocket009")
pocket10.Profile = sketch16
pocket10.Length = 6.99
pocket10.Reversed = True

# Sketch on XY plane
sketch17 = body.newObject("Sketcher::SketchObject", "Sketch016")
sketch17.AttachmentSupport = (doc.getObject("XY_Plane"), [""])
sketch17.MapMode = "FlatFace"
sketch17.AttachmentOffset = App.Placement(Vector(0, 0, 3), App.Rotation())
sketch17.addGeometry(Part.Circle(Vector(9.6, 35.7, 0), Vector(0, 0, 1), 2.2), False)
sketch17.addConstraint([
    Sketcher.Constraint("Diameter", 0, 4.4),
    Sketcher.Constraint("DistanceX", -1, 1, 0, 3, 9.576305),
    Sketcher.Constraint("DistanceY", -1, 1, 0, 3, 35.739256),
])
pocket11 = body.newObject("PartDesign::Pocket", "Pocket010")
pocket11.Profile = sketch17
pocket11.Length = 6.99
pocket11.Reversed = True

# Sketch on XY plane
sketch18 = body.newObject("Sketcher::SketchObject", "Sketch017")
sketch18.AttachmentSupport = (doc.getObject("XY_Plane"), [""])
sketch18.MapMode = "FlatFace"
sketch18.AttachmentOffset = App.Placement(Vector(0, 0, 3), App.Rotation())
sketch18.addGeometry(Part.Circle(Vector(26.2, -26.2, 0), Vector(0, 0, 1), 2.2), False)
sketch18.addConstraint([
    Sketcher.Constraint("Diameter", 0, 4.4),
    Sketcher.Constraint("DistanceX", -1, 1, 0, 3, 26.162951),
    Sketcher.Constraint("DistanceY", 0, 3, -1, 1, 26.162951),
])
pocket12 = body.newObject("PartDesign::Pocket", "Pocket011")
pocket12.Profile = sketch18
pocket12.Length = 6.99
pocket12.Reversed = True

# Sketch on XY plane
sketch19 = body.newObject("Sketcher::SketchObject", "Sketch018")
sketch19.AttachmentSupport = (doc.getObject("XY_Plane"), [""])
sketch19.MapMode = "FlatFace"
sketch19.AttachmentOffset = App.Placement(Vector(0, 0, 3), App.Rotation())
sketch19.addGeometry([
    Part.Circle(Vector(-9.6, 35.7, 0), Vector(0, 0, 1), 3.2),  # 0
    Part.Circle(Vector(-26.2, 26.2, 0), Vector(0, 0, 1), 3.2),  # 1
    Part.Circle(Vector(-35.7, 9.6, 0), Vector(0, 0, 1), 3.2),  # 2
    Part.Circle(Vector(-35.7, -9.6, 0), Vector(0, 0, 1), 3.2),  # 3
    Part.Circle(Vector(-26.2, -26.2, 0), Vector(0, 0, 1), 3.2),  # 4
    Part.Circle(Vector(-9.6, -35.7, 0), Vector(0, 0, 1), 3.2),  # 5
], False)
sketch19.addConstraint([
    Sketcher.Constraint("Equal", 0, 1),
    Sketcher.Constraint("Equal", 1, 2),
    Sketcher.Constraint("Equal", 2, 3),
    Sketcher.Constraint("Equal", 3, 4),
    Sketcher.Constraint("Equal", 4, 5),
    Sketcher.Constraint("Symmetric", 2, 3, 3, 3, -1),
    Sketcher.Constraint("Symmetric", 1, 3, 4, 3, -1),
    Sketcher.Constraint("Symmetric", 0, 3, 5, 3, -1),
    Sketcher.Constraint("Diameter", 0, 6.5),
    Sketcher.Constraint("DistanceY", 4, 3, 1, 3, 52.325902),
    Sketcher.Constraint("DistanceX", 1, 3, -1, 1, 26.162951),
    Sketcher.Constraint("DistanceX", 2, 3, 0, 3, 26.162951),
    Sketcher.Constraint("DistanceY", 2, 3, 0, 3, 26.162951),
    Sketcher.Constraint("DistanceY", 3, 3, 2, 3, 19.152609),
    Sketcher.Constraint("DistanceX", 0, 3, -1, 1, 9.576305),
])
pocket13 = body.newObject("PartDesign::Pocket", "Pocket012")
pocket13.Profile = sketch19
pocket13.Length = 10
pocket13.Reversed = True

# Sketch on YZ plane
sketch20 = body.newObject("Sketcher::SketchObject", "Sketch019")
sketch20.AttachmentSupport = (doc.getObject("YZ_Plane"), [""])
sketch20.MapMode = "FlatFace"
sketch20.AttachmentOffset = App.Placement(Vector(0, 0, -50), App.Rotation())
sketch20.addGeometry([
    Part.ArcOfCircle(Part.Circle(Vector(0, -13, 0), Vector(0, 0, 1), 26), math.radians(180), math.radians(360)),  # 0
    Part.ArcOfCircle(Part.Circle(Vector(-21, -13, 0), Vector(0, 0, 1), 5), math.radians(114), math.radians(180)),  # 1
    Part.ArcOfCircle(Part.Circle(Vector(-25, -3, 0), Vector(0, 0, 1), 5), math.radians(-66), math.radians(0)),  # 2
    Part.LineSegment(Vector(-20, -3, 0), Vector(-20, 3, 0)),  # 3
    Part.LineSegment(Vector(-20, 3, 0), Vector(20, 3, 0)),  # 4
    Part.LineSegment(Vector(20, 3, 0), Vector(20, -3, 0)),  # 5
    Part.ArcOfCircle(Part.Circle(Vector(25, -3, 0), Vector(0, 0, 1), 5), math.radians(-180), math.radians(-114)),  # 6
    Part.ArcOfCircle(Part.Circle(Vector(21, -13, 0), Vector(0, 0, 1), 5), math.radians(0), math.radians(66)),  # 7
], False)
sketch20.addConstraint([
    Sketcher.Constraint("Tangent", 0, 1, 1, 2),
    Sketcher.Constraint("Tangent", 1, 1, 2, 1),
    Sketcher.Constraint("Tangent", 2, 2, 3, 1),
    Sketcher.Constraint("Coincident", 3, 2, 4, 1),
    Sketcher.Constraint("Coincident", 4, 2, 5, 1),
    Sketcher.Constraint("Tangent", 5, 2, 6, 1),
    Sketcher.Constraint("Tangent", 6, 2, 7, 2),
    Sketcher.Constraint("Tangent", 7, 1, 0, 2),
    Sketcher.Constraint("Vertical", 3),
    Sketcher.Constraint("Horizontal", 4),
    Sketcher.Constraint("Vertical", 5),
    Sketcher.Constraint("Equal", 1, 2),
    Sketcher.Constraint("Equal", 2, 6),
    Sketcher.Constraint("Equal", 6, 7),
    Sketcher.Constraint("Symmetric", 2, 3, 6, 3, -2),
    Sketcher.Constraint("PointOnObject", 0, 3, -2),
    Sketcher.Constraint("Horizontal", 0, 3, 1, 3),
    Sketcher.Constraint("Radius", 0, 26.5),
    Sketcher.Constraint("DistanceY", -1, 1, 3, 2, 3.0),
    Sketcher.Constraint("DistanceY", 1, 3, 2, 3, 10.0),
    Sketcher.Constraint("DistanceY", 3, 1, 3, 2, 5.98),
    Sketcher.Constraint("Radius", 1, 5.473901),
])
pad6 = body.newObject("PartDesign::Pad", "Pad005")
pad6.Profile = sketch20
pad6.Type = "TwoLengths"
pad6.Length = 4
pad6.Length2 = 2
pad6.Reversed = True
doc.recompute()

fillet = body.newObject("PartDesign::Fillet", "Fillet")
fillet.Base = (pad6, edges_at(pad6, [(-54, 0, 3)]))
fillet.Radius = 5

# Sketch on XY plane
sketch21 = body.newObject("Sketcher::SketchObject", "Sketch020")
sketch21.AttachmentSupport = (doc.getObject("XY_Plane"), [""])
sketch21.MapMode = "FlatFace"
sketch21.addGeometry([
    Part.LineSegment(Vector(-100, 46, 0), Vector(-100, -46, 0)),
    Part.LineSegment(Vector(-100, -46, 0), Vector(0, -46, 0)),
    Part.LineSegment(Vector(0, -46, 0), Vector(0, 46, 0)),
    Part.LineSegment(Vector(0, 46, 0), Vector(-100, 46, 0)),
], False)
sketch21.addConstraint([
    Sketcher.Constraint("Coincident", 0, 2, 1, 1),
    Sketcher.Constraint("Coincident", 1, 2, 2, 1),
    Sketcher.Constraint("Coincident", 2, 2, 3, 1),
    Sketcher.Constraint("Coincident", 3, 2, 0, 1),
    Sketcher.Constraint("Vertical", 0),
    Sketcher.Constraint("Horizontal", 1),
    Sketcher.Constraint("Vertical", 2),
    Sketcher.Constraint("Horizontal", 3),
    Sketcher.Constraint("Symmetric", 1, 2, 2, 2, -1, 1),
    Sketcher.Constraint("DistanceX", 1, 1, 1, 2, 100.0),
    Sketcher.Constraint("DistanceY", 0, 2, 0, 1, 92.0),
])
pocket14 = body.newObject("PartDesign::Pocket", "Pocket013")
pocket14.Profile = sketch21
pocket14.Type = "ThroughAll"
pocket14.Midplane = True

doc.recompute()
